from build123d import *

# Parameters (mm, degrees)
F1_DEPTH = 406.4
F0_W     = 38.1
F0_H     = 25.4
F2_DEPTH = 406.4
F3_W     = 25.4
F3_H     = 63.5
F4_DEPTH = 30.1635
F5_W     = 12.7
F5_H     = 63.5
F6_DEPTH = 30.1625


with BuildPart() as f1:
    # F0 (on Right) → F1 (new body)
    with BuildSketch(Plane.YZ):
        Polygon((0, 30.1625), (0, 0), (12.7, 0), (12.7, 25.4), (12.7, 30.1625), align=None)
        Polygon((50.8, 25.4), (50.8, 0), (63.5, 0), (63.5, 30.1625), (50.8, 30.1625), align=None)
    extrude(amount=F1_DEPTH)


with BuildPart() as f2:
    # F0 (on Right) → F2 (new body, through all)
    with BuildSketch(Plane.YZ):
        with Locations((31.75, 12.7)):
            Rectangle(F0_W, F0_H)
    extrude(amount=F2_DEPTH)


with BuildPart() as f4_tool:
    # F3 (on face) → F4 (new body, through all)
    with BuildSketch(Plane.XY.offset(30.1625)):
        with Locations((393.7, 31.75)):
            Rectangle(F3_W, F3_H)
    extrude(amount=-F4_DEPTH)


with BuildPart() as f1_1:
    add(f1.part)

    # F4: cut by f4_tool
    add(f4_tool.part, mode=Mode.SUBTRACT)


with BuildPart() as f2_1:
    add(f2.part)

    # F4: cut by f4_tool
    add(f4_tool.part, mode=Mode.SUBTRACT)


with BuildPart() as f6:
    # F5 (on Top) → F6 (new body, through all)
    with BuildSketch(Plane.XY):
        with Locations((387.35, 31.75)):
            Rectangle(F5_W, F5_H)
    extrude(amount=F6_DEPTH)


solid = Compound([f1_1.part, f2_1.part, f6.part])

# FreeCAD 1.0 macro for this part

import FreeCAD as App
import Part
import Sketcher
from FreeCAD import Vector
Q = App.Units.Quantity

doc = App.newDocument("Part")
body = doc.addObject("PartDesign::Body", "Body")
body.AllowCompound = True

sketch1 = body.newObject("Sketcher::SketchObject", "Sketch")
sketch1.AttachmentSupport = (doc.getObject("YZ_Plane"), [""])
sketch1.MapMode = "FlatFace"
sketch1.addGeometry([
    Part.LineSegment(Vector(0, 30, 0), Vector(0, 0, 0)),
    Part.LineSegment(Vector(0, 0, 0), Vector(13, 0, 0)),
    Part.LineSegment(Vector(13, 0, 0), Vector(13, 30, 0)),
    Part.LineSegment(Vector(13, 30, 0), Vector(0, 30, 0)),
    Part.LineSegment(Vector(51, 0, 0), Vector(64, 0, 0)),
    Part.LineSegment(Vector(64, 0, 0), Vector(64, 30, 0)),
    Part.LineSegment(Vector(64, 30, 0), Vector(51, 30, 0)),
    Part.LineSegment(Vector(51, 30, 0), Vector(51, 0, 0)),
], False)
sketch1.addConstraint([
    Sketcher.Constraint("Coincident", 0, 2, 1, 1),
    Sketcher.Constraint("Coincident", 1, 2, 2, 1),
    Sketcher.Constraint("Coincident", 2, 2, 3, 1),
    Sketcher.Constraint("Coincident", 3, 2, 0, 1),
    Sketcher.Constraint("Coincident", 4, 2, 5, 1),
    Sketcher.Constraint("Coincident", 5, 2, 6, 1),
    Sketcher.Constraint("Coincident", 6, 2, 7, 1),
    Sketcher.Constraint("Coincident", 7, 2, 4, 1),
    Sketcher.Constraint("Vertical", 0),
    Sketcher.Constraint("Horizontal", 1),
    Sketcher.Constraint("Vertical", 2),
    Sketcher.Constraint("Horizontal", 3),
    Sketcher.Constraint("Horizontal", 4),
    Sketcher.Constraint("Vertical", 5),
    Sketcher.Constraint("Horizontal", 6),
    Sketcher.Constraint("Vertical", 7),
    Sketcher.Constraint("Coincident", 0, 2, -1, 1),
    Sketcher.Constraint("PointOnObject", 4, 2, -1),
    Sketcher.Constraint("Horizontal", 3, 2, 5, 2),
    Sketcher.Constraint("Equal", 3, 4),
    Sketcher.Constraint("DistanceX", 1, 1, 1, 2, Q("0.5 in")),
    Sketcher.Constraint("DistanceX", -1, 1, 6, 2, Q("2 in")),
    Sketcher.Constraint("DistanceY", 0, 2, 0, 1, Q("1.1875 in")),
])
pad1 = body.newObject("PartDesign::Pad", "Pad")
pad1.Profile = sketch1
pad1.Length = Q("16 in")
body2 = doc.addObject("PartDesign::Body", "Body001")

sketch2 = body2.newObject("Sketcher::SketchObject", "Sketch001")
sketch2.AttachmentSupport = (doc.getObject("YZ_Plane001"), [""])
sketch2.MapMode = "FlatFace"
sketch2.addGeometry([
    Part.LineSegment(Vector(13, 25, 0), Vector(13, 0, 0)),
    Part.LineSegment(Vector(13, 0, 0), Vector(51, 0, 0)),
    Part.LineSegment(Vector(51, 0, 0), Vector(51, 25, 0)),
    Part.LineSegment(Vector(51, 25, 0), Vector(13, 25, 0)),
], False)
sketch2.addConstraint([
    Sketcher.Constraint("Coincident", 0, 2, 1, 1),
    Sketcher.Constraint("Coincident", 1, 2, 2, 1),
    Sketcher.Constraint("Coincident", 2, 2, 3, 1),
    Sketcher.Constraint("Coincident", 3, 2, 0, 1),
    Sketcher.Constraint("Vertical", 0),
    Sketcher.Constraint("Horizontal", 1),
    Sketcher.Constraint("Vertical", 2),
    Sketcher.Constraint("Horizontal", 3),
    Sketcher.Constraint("PointOnObject", 0, 2, -1),
    Sketcher.Constraint("DistanceY", 0, 2, 0, 1, Q("1 in")),
    Sketcher.Constraint("DistanceX", 1, 1, 1, 2, Q("1.5 in")),
    Sketcher.Constraint("DistanceX", -1, 1, 1, 2, Q("2 in")),
])
pad2 = body2.newObject("PartDesign::Pad", "Pad001")
pad2.Profile = sketch2
pad2.Length = Q("16 in")
body3 = doc.addObject("PartDesign::Body", "Body002")

sketch3 = body3.newObject("Sketcher::SketchObject", "Sketch002")
sketch3.AttachmentSupport = (doc.getObject("XY_Plane002"), [""])
sketch3.MapMode = "FlatFace"
sketch3.AttachmentOffset = App.Placement(Vector(0, 0, 1.1875 * 25.4), App.Rotation())
sketch3.addGeometry([
    Part.LineSegment(Vector(381, 64, 0), Vector(381, 0, 0)),
    Part.LineSegment(Vector(381, 0, 0), Vector(406, 0, 0)),
    Part.LineSegment(Vector(406, 0, 0), Vector(406, 64, 0)),
    Part.LineSegment(Vector(406, 64, 0), Vector(381, 64, 0)),
], False)
sketch3.addConstraint([
    Sketcher.Constraint("Coincident", 0, 2, 1, 1),
    Sketcher.Constraint("Coincident", 1, 2, 2, 1),
    Sketcher.Constraint("Coincident", 2, 2, 3, 1),
    Sketcher.Constraint("Coincident", 3, 2, 0, 1),
    Sketcher.Constraint("Vertical", 0),
    Sketcher.Constraint("Horizontal", 1),
    Sketcher.Constraint("Vertical", 2),
    Sketcher.Constraint("Horizontal", 3),
    Sketcher.Constraint("PointOnObject", 0, 2, -1),
    Sketcher.Constraint("DistanceX", 1, 1, 1, 2, Q("1 in")),
    Sketcher.Constraint("DistanceY", 0, 2, 0, 1, Q("2.5 in")),
    Sketcher.Constraint("DistanceX", -1, 1, 0, 2, Q("15 in")),
])
pad3 = body3.newObject("PartDesign::Pad", "Pad002")
pad3.Profile = sketch3
pad3.Length = 30.1635
pad3.Reversed = True
body.AllowCompound = True
doc.recompute()

body4 = doc.addObject("PartDesign::Body", "Body003")
body4.BaseFeature = body3
boolean = body.newObject("PartDesign::Boolean", "Boolean")
boolean.Type = "Cut"
boolean.addObjects([body4])
doc.recompute()

boolean2 = body2.newObject("PartDesign::Boolean", "Boolean001")
boolean2.Type = "Cut"
boolean2.addObjects([body3])
body5 = doc.addObject("PartDesign::Body", "Body004")

sketch4 = body5.newObject("Sketcher::SketchObject", "Sketch003")
sketch4.AttachmentSupport = (doc.getObject("XY_Plane004"), [""])
sketch4.MapMode = "FlatFace"
sketch4.addGeometry([
    Part.LineSegment(Vector(381, 64, 0), Vector(381, 0, 0)),
    Part.LineSegment(Vector(381, 0, 0), Vector(394, 0, 0)),
    Part.LineSegment(Vector(394, 0, 0), Vector(394, 64, 0)),
    Part.LineSegment(Vector(394, 64, 0), Vector(381, 64, 0)),
], False)
sketch4.addConstraint([
    Sketcher.Constraint("Coincident", 0, 2, 1, 1),
    Sketcher.Constraint("Coincident", 1, 2, 2, 1),
    Sketcher.Constraint("Coincident", 2, 2, 3, 1),
    Sketcher.Constraint("Coincident", 3, 2, 0, 1),
    Sketcher.Constraint("Vertical", 0),
    Sketcher.Constraint("Horizontal", 1),
    Sketcher.Constraint("Vertical", 2),
    Sketcher.Constraint("Horizontal", 3),
    Sketcher.Constraint("PointOnObject", 0, 2, -1),
    Sketcher.Constraint("DistanceX", 1, 1, 1, 2, Q("0.5 in")),
    Sketcher.Constraint("DistanceY", 0, 2, 0, 1, Q("2.5 in")),
    Sketcher.Constraint("DistanceX", -1, 1, 0, 2, Q("15 in")),
])
pad4 = body5.newObject("PartDesign::Pad", "Pad003")
pad4.Profile = sketch4
pad4.Length = Q("1.1875 in")

doc.recompute()
